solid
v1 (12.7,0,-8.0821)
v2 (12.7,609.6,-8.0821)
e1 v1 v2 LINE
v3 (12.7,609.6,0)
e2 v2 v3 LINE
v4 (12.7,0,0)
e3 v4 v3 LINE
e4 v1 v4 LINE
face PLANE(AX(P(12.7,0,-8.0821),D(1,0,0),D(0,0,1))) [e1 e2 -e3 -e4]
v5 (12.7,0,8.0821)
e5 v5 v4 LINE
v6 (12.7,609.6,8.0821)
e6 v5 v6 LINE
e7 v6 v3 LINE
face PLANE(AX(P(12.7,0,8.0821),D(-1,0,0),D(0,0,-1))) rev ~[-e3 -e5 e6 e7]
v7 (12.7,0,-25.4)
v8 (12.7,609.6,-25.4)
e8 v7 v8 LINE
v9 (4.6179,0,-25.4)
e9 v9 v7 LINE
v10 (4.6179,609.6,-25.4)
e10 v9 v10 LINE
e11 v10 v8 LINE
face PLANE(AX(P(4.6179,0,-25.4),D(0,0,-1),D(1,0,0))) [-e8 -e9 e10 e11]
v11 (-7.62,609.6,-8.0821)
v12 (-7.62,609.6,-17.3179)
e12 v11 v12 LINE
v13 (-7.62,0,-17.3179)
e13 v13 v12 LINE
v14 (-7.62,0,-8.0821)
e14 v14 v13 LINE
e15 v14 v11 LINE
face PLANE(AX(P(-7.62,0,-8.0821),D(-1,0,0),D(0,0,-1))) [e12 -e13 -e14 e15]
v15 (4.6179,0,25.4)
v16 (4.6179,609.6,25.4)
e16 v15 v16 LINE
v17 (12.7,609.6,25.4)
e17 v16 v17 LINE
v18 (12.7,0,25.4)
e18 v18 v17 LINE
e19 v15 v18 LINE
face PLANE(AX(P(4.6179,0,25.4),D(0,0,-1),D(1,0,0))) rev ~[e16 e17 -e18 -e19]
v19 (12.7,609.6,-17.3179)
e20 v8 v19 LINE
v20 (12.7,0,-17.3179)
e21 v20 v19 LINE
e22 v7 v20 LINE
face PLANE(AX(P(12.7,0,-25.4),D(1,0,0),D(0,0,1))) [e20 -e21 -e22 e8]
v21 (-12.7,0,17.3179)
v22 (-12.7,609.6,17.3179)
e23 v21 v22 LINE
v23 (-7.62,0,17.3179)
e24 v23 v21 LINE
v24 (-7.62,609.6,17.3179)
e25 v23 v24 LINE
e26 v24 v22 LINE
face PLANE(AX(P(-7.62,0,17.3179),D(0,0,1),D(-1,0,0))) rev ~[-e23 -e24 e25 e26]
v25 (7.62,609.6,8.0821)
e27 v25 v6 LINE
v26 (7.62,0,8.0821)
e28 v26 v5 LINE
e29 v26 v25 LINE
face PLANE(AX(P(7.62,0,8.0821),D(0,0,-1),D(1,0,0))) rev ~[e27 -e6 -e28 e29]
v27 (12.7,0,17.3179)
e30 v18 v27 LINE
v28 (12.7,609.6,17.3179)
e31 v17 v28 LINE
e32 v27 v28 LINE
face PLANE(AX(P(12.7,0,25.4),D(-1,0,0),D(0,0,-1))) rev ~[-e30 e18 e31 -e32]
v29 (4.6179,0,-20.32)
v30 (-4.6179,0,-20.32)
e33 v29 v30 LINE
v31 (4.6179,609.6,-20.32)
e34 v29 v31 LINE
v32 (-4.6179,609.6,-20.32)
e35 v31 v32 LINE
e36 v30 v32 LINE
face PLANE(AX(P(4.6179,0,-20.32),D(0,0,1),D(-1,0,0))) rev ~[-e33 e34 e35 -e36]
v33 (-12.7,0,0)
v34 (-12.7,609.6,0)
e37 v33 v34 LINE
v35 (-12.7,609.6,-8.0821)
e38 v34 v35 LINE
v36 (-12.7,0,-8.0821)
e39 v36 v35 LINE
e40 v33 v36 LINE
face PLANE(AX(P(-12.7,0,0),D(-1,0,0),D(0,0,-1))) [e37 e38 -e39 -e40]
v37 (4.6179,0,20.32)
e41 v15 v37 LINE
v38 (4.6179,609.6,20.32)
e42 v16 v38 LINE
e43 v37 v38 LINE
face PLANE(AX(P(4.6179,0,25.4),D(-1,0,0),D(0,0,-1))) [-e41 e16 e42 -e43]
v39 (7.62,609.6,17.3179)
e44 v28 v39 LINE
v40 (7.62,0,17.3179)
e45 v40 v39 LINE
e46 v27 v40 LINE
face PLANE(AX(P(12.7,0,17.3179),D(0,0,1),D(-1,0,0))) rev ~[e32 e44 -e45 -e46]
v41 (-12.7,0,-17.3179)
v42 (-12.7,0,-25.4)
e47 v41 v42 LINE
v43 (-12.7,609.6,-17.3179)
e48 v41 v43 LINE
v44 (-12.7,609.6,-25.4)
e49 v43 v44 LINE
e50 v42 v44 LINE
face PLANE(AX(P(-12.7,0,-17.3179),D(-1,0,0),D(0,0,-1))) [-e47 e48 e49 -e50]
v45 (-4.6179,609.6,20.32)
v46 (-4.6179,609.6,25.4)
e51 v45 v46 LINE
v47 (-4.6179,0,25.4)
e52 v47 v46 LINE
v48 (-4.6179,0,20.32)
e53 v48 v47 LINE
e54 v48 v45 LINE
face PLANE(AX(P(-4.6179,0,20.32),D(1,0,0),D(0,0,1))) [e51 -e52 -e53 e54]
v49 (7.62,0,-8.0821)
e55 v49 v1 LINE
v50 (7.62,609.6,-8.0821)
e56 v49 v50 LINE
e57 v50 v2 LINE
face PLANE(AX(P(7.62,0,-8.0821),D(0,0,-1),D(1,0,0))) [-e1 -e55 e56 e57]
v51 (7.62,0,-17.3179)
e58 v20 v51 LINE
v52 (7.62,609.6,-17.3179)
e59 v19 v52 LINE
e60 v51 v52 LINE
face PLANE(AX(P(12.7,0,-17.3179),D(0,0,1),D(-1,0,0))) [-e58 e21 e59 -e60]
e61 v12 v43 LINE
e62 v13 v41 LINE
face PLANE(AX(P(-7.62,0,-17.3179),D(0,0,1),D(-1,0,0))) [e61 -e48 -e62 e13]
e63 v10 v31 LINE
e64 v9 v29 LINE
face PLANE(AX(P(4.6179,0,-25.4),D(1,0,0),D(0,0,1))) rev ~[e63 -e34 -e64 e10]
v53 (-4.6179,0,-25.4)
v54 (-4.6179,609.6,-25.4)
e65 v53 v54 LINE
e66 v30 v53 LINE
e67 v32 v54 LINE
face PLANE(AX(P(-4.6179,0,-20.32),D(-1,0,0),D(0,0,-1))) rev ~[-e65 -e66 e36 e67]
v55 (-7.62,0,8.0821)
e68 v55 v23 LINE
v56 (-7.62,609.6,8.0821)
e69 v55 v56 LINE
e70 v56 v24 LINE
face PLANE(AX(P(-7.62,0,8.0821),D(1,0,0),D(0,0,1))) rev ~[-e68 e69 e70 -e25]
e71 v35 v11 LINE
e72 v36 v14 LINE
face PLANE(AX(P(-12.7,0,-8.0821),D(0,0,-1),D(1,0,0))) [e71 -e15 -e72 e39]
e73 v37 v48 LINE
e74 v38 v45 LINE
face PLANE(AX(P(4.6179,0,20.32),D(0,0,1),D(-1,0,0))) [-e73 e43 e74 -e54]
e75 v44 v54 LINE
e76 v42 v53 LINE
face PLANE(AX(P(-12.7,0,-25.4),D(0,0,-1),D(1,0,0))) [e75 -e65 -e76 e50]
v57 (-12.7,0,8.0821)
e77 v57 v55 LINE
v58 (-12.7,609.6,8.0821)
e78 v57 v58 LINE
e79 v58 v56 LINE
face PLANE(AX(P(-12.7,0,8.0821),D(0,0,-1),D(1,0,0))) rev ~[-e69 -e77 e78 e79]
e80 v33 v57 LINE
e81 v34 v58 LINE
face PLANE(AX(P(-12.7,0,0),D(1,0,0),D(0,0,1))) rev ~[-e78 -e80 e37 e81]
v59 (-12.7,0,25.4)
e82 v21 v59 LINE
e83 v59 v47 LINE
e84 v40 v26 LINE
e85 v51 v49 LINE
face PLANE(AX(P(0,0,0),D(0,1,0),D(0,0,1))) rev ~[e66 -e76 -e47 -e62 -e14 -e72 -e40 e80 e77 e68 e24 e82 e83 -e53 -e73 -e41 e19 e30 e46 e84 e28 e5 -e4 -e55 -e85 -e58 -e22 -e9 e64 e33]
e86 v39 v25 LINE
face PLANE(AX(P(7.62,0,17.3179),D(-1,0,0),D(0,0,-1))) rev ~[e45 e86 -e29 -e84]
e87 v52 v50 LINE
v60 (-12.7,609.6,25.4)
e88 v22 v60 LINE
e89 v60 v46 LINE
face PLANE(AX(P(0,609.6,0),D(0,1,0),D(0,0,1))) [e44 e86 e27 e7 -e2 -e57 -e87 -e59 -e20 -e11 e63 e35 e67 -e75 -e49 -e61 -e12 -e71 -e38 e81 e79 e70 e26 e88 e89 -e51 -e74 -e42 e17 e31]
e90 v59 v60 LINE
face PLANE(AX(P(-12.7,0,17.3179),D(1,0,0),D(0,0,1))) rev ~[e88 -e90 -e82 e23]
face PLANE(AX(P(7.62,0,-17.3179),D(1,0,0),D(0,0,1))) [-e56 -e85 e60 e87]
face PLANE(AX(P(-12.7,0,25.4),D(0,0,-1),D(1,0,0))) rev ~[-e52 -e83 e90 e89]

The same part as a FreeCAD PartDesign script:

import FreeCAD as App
import Part
import Sketcher
from FreeCAD import Vector
Q = App.Units.Quantity


def add_polygon(sketch, points):
    """Adds a closed chain of lines whose ends are joined by coincident constraints."""
    first, n = sketch.GeometryCount, len(points)
    for a, b in zip(points, points[1:] + points[:1]):
        sketch.addGeometry(Part.LineSegment(App.Vector(*a, 0), App.Vector(*b, 0)), False)
    for i in range(n):
        sketch.addConstraint(Sketcher.Constraint("Coincident", first + i, 2, first + (i + 1) % n, 1))

doc = App.newDocument("Part")
params = doc.addObject("Spreadsheet::Sheet", "Params")
for row, (alias, value) in enumerate([
    ("sketch1_width", "0.2 in"),
    ("pad1_length", "24 in"),
], start=1):
    params.set(f"A{row}", alias)
    params.set(f"B{row}", "=" + value)
    params.setAlias(f"B{row}", alias)

body = doc.addObject("PartDesign::Body", "Body")

sketch1 = body.newObject("Sketcher::SketchObject", "Sketch")
sketch1.AttachmentSupport = (doc.getObject("XZ_Plane"), [""])
sketch1.MapMode = "FlatFace"
add_polygon(sketch1, [(13, 17), (13, 25), (5, 25), (5, 20), (-5, 20), (-5, 25), (-13, 25), (-13, 17), (-8, 17), (-8, 8), (-13, 8), (-13, -8), (-8, -8), (-8, -17), (-13, -17), (-13, -25), (-5, -25), (-5, -20), (5, -20), (5, -25), (13, -25), (13, -17), (8, -17), (8, -8), (13, -8), (13, 8), (8, 8), (8, 17)])
sketch1.addConstraint(Sketcher.Constraint("Vertical", 0))
sketch1.addConstraint(Sketcher.Constraint("Horizontal", 1))
sketch1.addConstraint(Sketcher.Constraint("Vertical", 2))
sketch1.addConstraint(Sketcher.Constraint("Horizontal", 3))
sketch1.addConstraint(Sketcher.Constraint("Vertical", 4))
sketch1.addConstraint(Sketcher.Constraint("Horizontal", 5))
sketch1.addConstraint(Sketcher.Constraint("Vertical", 6))
sketch1.addConstraint(Sketcher.Constraint("Horizontal", 7))
sketch1.addConstraint(Sketcher.Constraint("Vertical", 8))
sketch1.addConstraint(Sketcher.Constraint("Horizontal", 9))
sketch1.addConstraint(Sketcher.Constraint("Vertical", 10))
sketch1.addConstraint(Sketcher.Constraint("Horizontal", 11))
sketch1.addConstraint(Sketcher.Constraint("Vertical", 12))
sketch1.addConstraint(Sketcher.Constraint("Horizontal", 13))
sketch1.addConstraint(Sketcher.Constraint("Vertical", 14))
sketch1.addConstraint(Sketcher.Constraint("Horizontal", 15))
sketch1.addConstraint(Sketcher.Constraint("Vertical", 16))
sketch1.addConstraint(Sketcher.Constraint("Horizontal", 17))
sketch1.addConstraint(Sketcher.Constraint("Vertical", 18))
sketch1.addConstraint(Sketcher.Constraint("Horizontal", 19))
sketch1.addConstraint(Sketcher.Constraint("Vertical", 20))
sketch1.addConstraint(Sketcher.Constraint("Horizontal", 21))
sketch1.addConstraint(Sketcher.Constraint("Vertical", 22))
sketch1.addConstraint(Sketcher.Constraint("Horizontal", 23))
sketch1.addConstraint(Sketcher.Constraint("Vertical", 24))
sketch1.addConstraint(Sketcher.Constraint("Horizontal", 25))
sketch1.addConstraint(Sketcher.Constraint("Vertical", 26))
sketch1.addConstraint(Sketcher.Constraint("Horizontal", 27))
sketch1.addConstraint(Sketcher.Constraint("Symmetric", 0, 2, 14, 2, -1, 1))
sketch1.addConstraint(Sketcher.Constraint("Symmetric", 2, 2, 16, 2, -1, 1))
sketch1.addConstraint(Sketcher.Constraint("Symmetric", 4, 2, 18, 2, -1, 1))
sketch1.addConstraint(Sketcher.Constraint("Symmetric", 6, 2, 20, 2, -1, 1))
sketch1.addConstraint(Sketcher.Constraint("Symmetric", 8, 2, 22, 2, -1, 1))
sketch1.addConstraint(Sketcher.Constraint("Symmetric", 10, 2, 24, 2, -1, 1))
sketch1.addConstraint(Sketcher.Constraint("Symmetric", 12, 2, 26, 2, -1, 1))
sketch1.addConstraint(Sketcher.Constraint("Symmetric", 1, 2, 4, 2, -2))
sketch1.addConstraint(Sketcher.Constraint("Symmetric", 13, 2, 20, 2, -2))
sketch1.addConstraint(Sketcher.Constraint("Symmetric", 11, 2, 22, 2, -2))
sketch1.addConstraint(Sketcher.Constraint("Vertical", 6, 2, 9, 2))
sketch1.addConstraint(Sketcher.Constraint("Equal", 19, 0))
sketch1.addConstraint(Sketcher.Constraint("Equal", 27, 2))
sketch1.addConstraint(Sketcher.Constraint("Equal", 17, 8))
sketch1.addConstraint(Sketcher.Constraint("DistanceX", 7, 1, 7, 2, Q("0.2 in")))
sketch1.addConstraint(Sketcher.Constraint("DistanceY", -1, 1, 0, 2, Q("1 in")))
sketch1.addConstraint(Sketcher.Constraint("DistanceX", 5, 2, 0, 2, Q("1 in")))
sketch1.addConstraint(Sketcher.Constraint("DistanceX", 1, 2, 1, 1, Q("0.3182 in")))
sketch1.setExpression("Constraints[70]", "Params.sketch1_width")
pad1 = body.newObject("PartDesign::Pad", "Pad")
pad1.Profile = sketch1
pad1.setExpression("Length", "Params.pad1_length")
pad1.Reversed = True

doc.recompute()
